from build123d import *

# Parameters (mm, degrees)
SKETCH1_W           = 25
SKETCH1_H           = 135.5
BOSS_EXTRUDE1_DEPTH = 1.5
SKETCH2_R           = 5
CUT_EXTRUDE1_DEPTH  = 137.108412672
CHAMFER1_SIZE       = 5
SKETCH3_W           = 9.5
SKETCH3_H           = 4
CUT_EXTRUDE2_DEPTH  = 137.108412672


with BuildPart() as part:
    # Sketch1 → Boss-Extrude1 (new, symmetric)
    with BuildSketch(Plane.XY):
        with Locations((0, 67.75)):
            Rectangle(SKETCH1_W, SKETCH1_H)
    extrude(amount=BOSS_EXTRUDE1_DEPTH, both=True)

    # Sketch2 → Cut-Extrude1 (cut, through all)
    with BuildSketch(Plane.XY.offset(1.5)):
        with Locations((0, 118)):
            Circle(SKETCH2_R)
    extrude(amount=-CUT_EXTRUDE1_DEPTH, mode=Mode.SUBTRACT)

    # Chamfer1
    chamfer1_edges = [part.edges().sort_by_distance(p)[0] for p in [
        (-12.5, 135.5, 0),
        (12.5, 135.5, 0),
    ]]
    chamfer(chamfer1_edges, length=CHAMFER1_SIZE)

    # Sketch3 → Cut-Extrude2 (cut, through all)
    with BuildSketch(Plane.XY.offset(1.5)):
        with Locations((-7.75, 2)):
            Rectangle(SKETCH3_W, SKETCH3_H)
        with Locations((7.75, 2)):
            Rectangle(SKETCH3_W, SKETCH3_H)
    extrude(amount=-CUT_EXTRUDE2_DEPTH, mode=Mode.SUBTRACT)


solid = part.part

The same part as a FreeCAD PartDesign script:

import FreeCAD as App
import Part
import Sketcher
from FreeCAD import Vector


def edges_at(feature, points):
    """Names of the edges that pass closest to the given points."""
    edges = feature.Shape.Edges
    near = lambda p: min(range(len(edges)), key=lambda i: edges[i].distToShape(Part.Vertex(*p))[0])
    return sorted({f"Edge{near(p) + 1}" for p in points})


def add_polygon(sketch, points):
    """Adds a closed chain of lines whose ends are joined by coincident constraints."""
    first, n = sketch.GeometryCount, len(points)
    for a, b in zip(points, points[1:] + points[:1]):
        sketch.addGeometry(Part.LineSegment(App.Vector(*a, 0), App.Vector(*b, 0)), False)
    for i in range(n):
        sketch.addConstraint(Sketcher.Constraint("Coincident", first + i, 2, first + (i + 1) % n, 1))

doc = App.newDocument("Part")
body = doc.addObject("PartDesign::Body", "Body")

sketch1 = body.newObject("Sketcher::SketchObject", "Sketch")
sketch1.AttachmentSupport = (doc.getObject("XY_Plane"), [""])
sketch1.MapMode = "FlatFace"
add_polygon(sketch1, [(-12.5, 135.5), (-12.5, 0), (12.5, 0), (12.5, 135.5)])
sketch1.addConstraint(Sketcher.Constraint("Vertical", 0))
sketch1.addConstraint(Sketcher.Constraint("Horizontal", 1))
sketch1.addConstraint(Sketcher.Constraint("Vertical", 2))
sketch1.addConstraint(Sketcher.Constraint("Horizontal", 3))
sketch1.addConstraint(Sketcher.Constraint("Symmetric", 0, 2, 1, 2, -1, 1))
sketch1.addConstraint(Sketcher.Constraint("DistanceX", 1, 1, 1, 2, 25.0))
sketch1.addConstraint(Sketcher.Constraint("DistanceY", 0, 2, 0, 1, 135.5))
pad1 = body.newObject("PartDesign::Pad", "Pad")
pad1.Profile = sketch1
pad1.Length = 3
pad1.Midplane = True

sketch2 = body.newObject("Sketcher::SketchObject", "Sketch001")
sketch2.AttachmentSupport = (doc.getObject("XY_Plane"), [""])
sketch2.MapMode = "FlatFace"
sketch2.AttachmentOffset = App.Placement(Vector(0, 0, 1.5), App.Rotation())
sketch2.addGeometry(Part.Circle(Vector(0, 118, 0), Vector(0, 0, 1), 5), False)
sketch2.addConstraint(Sketcher.Constraint("PointOnObject", 0, 3, -2))
sketch2.addConstraint(Sketcher.Constraint("Diameter", 0, 10.0))
sketch2.addConstraint(Sketcher.Constraint("DistanceY", -1, 1, 0, 3, 118.0))
pocket1 = body.newObject("PartDesign::Pocket", "Pocket")
pocket1.Profile = sketch2
pocket1.Type = "ThroughAll"
doc.recompute()

chamfer = body.newObject("PartDesign::Chamfer", "Chamfer")
chamfer.Base = (pocket1, edges_at(pocket1, [(-12.5, 135.5, 0), (12.5, 135.5, 0)]))
chamfer.Size = 5

sketch3 = body.newObject("Sketcher::SketchObject", "Sketch002")
sketch3.AttachmentSupport = (doc.getObject("XY_Plane"), [""])
sketch3.MapMode = "FlatFace"
sketch3.AttachmentOffset = App.Placement(Vector(0, 0, 1.5), App.Rotation())
add_polygon(sketch3, [(-12.5, 4), (-12.5, 0), (-3, 0), (-3, 4)])
add_polygon(sketch3, [(3, 4), (3, 0), (12.5, 0), (12.5, 4)])
sketch3.addConstraint(Sketcher.Constraint("Vertical", 0))
sketch3.addConstraint(Sketcher.Constraint("Horizontal", 1))
sketch3.addConstraint(Sketcher.Constraint("Vertical", 2))
sketch3.addConstraint(Sketcher.Constraint("Horizontal", 3))
sketch3.addConstraint(Sketcher.Constraint("Vertical", 4))
sketch3.addConstraint(Sketcher.Constraint("Horizontal", 5))
sketch3.addConstraint(Sketcher.Constraint("Vertical", 6))
sketch3.addConstraint(Sketcher.Constraint("Horizontal", 7))
sketch3.addConstraint(Sketcher.Constraint("Symmetric", 1, 2, 4, 2, -1, 1))
sketch3.addConstraint(Sketcher.Constraint("Symmetric", 0, 2, 5, 2, -2))
sketch3.addConstraint(Sketcher.Constraint("Horizontal", 3, 2, 6, 2))
sketch3.addConstraint(Sketcher.Constraint("DistanceY", 0, 2, 0, 1, 4.0))
sketch3.addConstraint(Sketcher.Constraint("DistanceX", 1, 1, 1, 2, 9.5))
sketch3.addConstraint(Sketcher.Constraint("DistanceX", 1, 2, -1, 1, 3.0))
pocket2 = body.newObject("PartDesign::Pocket", "Pocket001")
pocket2.Profile = sketch3
pocket2.Type = "ThroughAll"

doc.recompute()
